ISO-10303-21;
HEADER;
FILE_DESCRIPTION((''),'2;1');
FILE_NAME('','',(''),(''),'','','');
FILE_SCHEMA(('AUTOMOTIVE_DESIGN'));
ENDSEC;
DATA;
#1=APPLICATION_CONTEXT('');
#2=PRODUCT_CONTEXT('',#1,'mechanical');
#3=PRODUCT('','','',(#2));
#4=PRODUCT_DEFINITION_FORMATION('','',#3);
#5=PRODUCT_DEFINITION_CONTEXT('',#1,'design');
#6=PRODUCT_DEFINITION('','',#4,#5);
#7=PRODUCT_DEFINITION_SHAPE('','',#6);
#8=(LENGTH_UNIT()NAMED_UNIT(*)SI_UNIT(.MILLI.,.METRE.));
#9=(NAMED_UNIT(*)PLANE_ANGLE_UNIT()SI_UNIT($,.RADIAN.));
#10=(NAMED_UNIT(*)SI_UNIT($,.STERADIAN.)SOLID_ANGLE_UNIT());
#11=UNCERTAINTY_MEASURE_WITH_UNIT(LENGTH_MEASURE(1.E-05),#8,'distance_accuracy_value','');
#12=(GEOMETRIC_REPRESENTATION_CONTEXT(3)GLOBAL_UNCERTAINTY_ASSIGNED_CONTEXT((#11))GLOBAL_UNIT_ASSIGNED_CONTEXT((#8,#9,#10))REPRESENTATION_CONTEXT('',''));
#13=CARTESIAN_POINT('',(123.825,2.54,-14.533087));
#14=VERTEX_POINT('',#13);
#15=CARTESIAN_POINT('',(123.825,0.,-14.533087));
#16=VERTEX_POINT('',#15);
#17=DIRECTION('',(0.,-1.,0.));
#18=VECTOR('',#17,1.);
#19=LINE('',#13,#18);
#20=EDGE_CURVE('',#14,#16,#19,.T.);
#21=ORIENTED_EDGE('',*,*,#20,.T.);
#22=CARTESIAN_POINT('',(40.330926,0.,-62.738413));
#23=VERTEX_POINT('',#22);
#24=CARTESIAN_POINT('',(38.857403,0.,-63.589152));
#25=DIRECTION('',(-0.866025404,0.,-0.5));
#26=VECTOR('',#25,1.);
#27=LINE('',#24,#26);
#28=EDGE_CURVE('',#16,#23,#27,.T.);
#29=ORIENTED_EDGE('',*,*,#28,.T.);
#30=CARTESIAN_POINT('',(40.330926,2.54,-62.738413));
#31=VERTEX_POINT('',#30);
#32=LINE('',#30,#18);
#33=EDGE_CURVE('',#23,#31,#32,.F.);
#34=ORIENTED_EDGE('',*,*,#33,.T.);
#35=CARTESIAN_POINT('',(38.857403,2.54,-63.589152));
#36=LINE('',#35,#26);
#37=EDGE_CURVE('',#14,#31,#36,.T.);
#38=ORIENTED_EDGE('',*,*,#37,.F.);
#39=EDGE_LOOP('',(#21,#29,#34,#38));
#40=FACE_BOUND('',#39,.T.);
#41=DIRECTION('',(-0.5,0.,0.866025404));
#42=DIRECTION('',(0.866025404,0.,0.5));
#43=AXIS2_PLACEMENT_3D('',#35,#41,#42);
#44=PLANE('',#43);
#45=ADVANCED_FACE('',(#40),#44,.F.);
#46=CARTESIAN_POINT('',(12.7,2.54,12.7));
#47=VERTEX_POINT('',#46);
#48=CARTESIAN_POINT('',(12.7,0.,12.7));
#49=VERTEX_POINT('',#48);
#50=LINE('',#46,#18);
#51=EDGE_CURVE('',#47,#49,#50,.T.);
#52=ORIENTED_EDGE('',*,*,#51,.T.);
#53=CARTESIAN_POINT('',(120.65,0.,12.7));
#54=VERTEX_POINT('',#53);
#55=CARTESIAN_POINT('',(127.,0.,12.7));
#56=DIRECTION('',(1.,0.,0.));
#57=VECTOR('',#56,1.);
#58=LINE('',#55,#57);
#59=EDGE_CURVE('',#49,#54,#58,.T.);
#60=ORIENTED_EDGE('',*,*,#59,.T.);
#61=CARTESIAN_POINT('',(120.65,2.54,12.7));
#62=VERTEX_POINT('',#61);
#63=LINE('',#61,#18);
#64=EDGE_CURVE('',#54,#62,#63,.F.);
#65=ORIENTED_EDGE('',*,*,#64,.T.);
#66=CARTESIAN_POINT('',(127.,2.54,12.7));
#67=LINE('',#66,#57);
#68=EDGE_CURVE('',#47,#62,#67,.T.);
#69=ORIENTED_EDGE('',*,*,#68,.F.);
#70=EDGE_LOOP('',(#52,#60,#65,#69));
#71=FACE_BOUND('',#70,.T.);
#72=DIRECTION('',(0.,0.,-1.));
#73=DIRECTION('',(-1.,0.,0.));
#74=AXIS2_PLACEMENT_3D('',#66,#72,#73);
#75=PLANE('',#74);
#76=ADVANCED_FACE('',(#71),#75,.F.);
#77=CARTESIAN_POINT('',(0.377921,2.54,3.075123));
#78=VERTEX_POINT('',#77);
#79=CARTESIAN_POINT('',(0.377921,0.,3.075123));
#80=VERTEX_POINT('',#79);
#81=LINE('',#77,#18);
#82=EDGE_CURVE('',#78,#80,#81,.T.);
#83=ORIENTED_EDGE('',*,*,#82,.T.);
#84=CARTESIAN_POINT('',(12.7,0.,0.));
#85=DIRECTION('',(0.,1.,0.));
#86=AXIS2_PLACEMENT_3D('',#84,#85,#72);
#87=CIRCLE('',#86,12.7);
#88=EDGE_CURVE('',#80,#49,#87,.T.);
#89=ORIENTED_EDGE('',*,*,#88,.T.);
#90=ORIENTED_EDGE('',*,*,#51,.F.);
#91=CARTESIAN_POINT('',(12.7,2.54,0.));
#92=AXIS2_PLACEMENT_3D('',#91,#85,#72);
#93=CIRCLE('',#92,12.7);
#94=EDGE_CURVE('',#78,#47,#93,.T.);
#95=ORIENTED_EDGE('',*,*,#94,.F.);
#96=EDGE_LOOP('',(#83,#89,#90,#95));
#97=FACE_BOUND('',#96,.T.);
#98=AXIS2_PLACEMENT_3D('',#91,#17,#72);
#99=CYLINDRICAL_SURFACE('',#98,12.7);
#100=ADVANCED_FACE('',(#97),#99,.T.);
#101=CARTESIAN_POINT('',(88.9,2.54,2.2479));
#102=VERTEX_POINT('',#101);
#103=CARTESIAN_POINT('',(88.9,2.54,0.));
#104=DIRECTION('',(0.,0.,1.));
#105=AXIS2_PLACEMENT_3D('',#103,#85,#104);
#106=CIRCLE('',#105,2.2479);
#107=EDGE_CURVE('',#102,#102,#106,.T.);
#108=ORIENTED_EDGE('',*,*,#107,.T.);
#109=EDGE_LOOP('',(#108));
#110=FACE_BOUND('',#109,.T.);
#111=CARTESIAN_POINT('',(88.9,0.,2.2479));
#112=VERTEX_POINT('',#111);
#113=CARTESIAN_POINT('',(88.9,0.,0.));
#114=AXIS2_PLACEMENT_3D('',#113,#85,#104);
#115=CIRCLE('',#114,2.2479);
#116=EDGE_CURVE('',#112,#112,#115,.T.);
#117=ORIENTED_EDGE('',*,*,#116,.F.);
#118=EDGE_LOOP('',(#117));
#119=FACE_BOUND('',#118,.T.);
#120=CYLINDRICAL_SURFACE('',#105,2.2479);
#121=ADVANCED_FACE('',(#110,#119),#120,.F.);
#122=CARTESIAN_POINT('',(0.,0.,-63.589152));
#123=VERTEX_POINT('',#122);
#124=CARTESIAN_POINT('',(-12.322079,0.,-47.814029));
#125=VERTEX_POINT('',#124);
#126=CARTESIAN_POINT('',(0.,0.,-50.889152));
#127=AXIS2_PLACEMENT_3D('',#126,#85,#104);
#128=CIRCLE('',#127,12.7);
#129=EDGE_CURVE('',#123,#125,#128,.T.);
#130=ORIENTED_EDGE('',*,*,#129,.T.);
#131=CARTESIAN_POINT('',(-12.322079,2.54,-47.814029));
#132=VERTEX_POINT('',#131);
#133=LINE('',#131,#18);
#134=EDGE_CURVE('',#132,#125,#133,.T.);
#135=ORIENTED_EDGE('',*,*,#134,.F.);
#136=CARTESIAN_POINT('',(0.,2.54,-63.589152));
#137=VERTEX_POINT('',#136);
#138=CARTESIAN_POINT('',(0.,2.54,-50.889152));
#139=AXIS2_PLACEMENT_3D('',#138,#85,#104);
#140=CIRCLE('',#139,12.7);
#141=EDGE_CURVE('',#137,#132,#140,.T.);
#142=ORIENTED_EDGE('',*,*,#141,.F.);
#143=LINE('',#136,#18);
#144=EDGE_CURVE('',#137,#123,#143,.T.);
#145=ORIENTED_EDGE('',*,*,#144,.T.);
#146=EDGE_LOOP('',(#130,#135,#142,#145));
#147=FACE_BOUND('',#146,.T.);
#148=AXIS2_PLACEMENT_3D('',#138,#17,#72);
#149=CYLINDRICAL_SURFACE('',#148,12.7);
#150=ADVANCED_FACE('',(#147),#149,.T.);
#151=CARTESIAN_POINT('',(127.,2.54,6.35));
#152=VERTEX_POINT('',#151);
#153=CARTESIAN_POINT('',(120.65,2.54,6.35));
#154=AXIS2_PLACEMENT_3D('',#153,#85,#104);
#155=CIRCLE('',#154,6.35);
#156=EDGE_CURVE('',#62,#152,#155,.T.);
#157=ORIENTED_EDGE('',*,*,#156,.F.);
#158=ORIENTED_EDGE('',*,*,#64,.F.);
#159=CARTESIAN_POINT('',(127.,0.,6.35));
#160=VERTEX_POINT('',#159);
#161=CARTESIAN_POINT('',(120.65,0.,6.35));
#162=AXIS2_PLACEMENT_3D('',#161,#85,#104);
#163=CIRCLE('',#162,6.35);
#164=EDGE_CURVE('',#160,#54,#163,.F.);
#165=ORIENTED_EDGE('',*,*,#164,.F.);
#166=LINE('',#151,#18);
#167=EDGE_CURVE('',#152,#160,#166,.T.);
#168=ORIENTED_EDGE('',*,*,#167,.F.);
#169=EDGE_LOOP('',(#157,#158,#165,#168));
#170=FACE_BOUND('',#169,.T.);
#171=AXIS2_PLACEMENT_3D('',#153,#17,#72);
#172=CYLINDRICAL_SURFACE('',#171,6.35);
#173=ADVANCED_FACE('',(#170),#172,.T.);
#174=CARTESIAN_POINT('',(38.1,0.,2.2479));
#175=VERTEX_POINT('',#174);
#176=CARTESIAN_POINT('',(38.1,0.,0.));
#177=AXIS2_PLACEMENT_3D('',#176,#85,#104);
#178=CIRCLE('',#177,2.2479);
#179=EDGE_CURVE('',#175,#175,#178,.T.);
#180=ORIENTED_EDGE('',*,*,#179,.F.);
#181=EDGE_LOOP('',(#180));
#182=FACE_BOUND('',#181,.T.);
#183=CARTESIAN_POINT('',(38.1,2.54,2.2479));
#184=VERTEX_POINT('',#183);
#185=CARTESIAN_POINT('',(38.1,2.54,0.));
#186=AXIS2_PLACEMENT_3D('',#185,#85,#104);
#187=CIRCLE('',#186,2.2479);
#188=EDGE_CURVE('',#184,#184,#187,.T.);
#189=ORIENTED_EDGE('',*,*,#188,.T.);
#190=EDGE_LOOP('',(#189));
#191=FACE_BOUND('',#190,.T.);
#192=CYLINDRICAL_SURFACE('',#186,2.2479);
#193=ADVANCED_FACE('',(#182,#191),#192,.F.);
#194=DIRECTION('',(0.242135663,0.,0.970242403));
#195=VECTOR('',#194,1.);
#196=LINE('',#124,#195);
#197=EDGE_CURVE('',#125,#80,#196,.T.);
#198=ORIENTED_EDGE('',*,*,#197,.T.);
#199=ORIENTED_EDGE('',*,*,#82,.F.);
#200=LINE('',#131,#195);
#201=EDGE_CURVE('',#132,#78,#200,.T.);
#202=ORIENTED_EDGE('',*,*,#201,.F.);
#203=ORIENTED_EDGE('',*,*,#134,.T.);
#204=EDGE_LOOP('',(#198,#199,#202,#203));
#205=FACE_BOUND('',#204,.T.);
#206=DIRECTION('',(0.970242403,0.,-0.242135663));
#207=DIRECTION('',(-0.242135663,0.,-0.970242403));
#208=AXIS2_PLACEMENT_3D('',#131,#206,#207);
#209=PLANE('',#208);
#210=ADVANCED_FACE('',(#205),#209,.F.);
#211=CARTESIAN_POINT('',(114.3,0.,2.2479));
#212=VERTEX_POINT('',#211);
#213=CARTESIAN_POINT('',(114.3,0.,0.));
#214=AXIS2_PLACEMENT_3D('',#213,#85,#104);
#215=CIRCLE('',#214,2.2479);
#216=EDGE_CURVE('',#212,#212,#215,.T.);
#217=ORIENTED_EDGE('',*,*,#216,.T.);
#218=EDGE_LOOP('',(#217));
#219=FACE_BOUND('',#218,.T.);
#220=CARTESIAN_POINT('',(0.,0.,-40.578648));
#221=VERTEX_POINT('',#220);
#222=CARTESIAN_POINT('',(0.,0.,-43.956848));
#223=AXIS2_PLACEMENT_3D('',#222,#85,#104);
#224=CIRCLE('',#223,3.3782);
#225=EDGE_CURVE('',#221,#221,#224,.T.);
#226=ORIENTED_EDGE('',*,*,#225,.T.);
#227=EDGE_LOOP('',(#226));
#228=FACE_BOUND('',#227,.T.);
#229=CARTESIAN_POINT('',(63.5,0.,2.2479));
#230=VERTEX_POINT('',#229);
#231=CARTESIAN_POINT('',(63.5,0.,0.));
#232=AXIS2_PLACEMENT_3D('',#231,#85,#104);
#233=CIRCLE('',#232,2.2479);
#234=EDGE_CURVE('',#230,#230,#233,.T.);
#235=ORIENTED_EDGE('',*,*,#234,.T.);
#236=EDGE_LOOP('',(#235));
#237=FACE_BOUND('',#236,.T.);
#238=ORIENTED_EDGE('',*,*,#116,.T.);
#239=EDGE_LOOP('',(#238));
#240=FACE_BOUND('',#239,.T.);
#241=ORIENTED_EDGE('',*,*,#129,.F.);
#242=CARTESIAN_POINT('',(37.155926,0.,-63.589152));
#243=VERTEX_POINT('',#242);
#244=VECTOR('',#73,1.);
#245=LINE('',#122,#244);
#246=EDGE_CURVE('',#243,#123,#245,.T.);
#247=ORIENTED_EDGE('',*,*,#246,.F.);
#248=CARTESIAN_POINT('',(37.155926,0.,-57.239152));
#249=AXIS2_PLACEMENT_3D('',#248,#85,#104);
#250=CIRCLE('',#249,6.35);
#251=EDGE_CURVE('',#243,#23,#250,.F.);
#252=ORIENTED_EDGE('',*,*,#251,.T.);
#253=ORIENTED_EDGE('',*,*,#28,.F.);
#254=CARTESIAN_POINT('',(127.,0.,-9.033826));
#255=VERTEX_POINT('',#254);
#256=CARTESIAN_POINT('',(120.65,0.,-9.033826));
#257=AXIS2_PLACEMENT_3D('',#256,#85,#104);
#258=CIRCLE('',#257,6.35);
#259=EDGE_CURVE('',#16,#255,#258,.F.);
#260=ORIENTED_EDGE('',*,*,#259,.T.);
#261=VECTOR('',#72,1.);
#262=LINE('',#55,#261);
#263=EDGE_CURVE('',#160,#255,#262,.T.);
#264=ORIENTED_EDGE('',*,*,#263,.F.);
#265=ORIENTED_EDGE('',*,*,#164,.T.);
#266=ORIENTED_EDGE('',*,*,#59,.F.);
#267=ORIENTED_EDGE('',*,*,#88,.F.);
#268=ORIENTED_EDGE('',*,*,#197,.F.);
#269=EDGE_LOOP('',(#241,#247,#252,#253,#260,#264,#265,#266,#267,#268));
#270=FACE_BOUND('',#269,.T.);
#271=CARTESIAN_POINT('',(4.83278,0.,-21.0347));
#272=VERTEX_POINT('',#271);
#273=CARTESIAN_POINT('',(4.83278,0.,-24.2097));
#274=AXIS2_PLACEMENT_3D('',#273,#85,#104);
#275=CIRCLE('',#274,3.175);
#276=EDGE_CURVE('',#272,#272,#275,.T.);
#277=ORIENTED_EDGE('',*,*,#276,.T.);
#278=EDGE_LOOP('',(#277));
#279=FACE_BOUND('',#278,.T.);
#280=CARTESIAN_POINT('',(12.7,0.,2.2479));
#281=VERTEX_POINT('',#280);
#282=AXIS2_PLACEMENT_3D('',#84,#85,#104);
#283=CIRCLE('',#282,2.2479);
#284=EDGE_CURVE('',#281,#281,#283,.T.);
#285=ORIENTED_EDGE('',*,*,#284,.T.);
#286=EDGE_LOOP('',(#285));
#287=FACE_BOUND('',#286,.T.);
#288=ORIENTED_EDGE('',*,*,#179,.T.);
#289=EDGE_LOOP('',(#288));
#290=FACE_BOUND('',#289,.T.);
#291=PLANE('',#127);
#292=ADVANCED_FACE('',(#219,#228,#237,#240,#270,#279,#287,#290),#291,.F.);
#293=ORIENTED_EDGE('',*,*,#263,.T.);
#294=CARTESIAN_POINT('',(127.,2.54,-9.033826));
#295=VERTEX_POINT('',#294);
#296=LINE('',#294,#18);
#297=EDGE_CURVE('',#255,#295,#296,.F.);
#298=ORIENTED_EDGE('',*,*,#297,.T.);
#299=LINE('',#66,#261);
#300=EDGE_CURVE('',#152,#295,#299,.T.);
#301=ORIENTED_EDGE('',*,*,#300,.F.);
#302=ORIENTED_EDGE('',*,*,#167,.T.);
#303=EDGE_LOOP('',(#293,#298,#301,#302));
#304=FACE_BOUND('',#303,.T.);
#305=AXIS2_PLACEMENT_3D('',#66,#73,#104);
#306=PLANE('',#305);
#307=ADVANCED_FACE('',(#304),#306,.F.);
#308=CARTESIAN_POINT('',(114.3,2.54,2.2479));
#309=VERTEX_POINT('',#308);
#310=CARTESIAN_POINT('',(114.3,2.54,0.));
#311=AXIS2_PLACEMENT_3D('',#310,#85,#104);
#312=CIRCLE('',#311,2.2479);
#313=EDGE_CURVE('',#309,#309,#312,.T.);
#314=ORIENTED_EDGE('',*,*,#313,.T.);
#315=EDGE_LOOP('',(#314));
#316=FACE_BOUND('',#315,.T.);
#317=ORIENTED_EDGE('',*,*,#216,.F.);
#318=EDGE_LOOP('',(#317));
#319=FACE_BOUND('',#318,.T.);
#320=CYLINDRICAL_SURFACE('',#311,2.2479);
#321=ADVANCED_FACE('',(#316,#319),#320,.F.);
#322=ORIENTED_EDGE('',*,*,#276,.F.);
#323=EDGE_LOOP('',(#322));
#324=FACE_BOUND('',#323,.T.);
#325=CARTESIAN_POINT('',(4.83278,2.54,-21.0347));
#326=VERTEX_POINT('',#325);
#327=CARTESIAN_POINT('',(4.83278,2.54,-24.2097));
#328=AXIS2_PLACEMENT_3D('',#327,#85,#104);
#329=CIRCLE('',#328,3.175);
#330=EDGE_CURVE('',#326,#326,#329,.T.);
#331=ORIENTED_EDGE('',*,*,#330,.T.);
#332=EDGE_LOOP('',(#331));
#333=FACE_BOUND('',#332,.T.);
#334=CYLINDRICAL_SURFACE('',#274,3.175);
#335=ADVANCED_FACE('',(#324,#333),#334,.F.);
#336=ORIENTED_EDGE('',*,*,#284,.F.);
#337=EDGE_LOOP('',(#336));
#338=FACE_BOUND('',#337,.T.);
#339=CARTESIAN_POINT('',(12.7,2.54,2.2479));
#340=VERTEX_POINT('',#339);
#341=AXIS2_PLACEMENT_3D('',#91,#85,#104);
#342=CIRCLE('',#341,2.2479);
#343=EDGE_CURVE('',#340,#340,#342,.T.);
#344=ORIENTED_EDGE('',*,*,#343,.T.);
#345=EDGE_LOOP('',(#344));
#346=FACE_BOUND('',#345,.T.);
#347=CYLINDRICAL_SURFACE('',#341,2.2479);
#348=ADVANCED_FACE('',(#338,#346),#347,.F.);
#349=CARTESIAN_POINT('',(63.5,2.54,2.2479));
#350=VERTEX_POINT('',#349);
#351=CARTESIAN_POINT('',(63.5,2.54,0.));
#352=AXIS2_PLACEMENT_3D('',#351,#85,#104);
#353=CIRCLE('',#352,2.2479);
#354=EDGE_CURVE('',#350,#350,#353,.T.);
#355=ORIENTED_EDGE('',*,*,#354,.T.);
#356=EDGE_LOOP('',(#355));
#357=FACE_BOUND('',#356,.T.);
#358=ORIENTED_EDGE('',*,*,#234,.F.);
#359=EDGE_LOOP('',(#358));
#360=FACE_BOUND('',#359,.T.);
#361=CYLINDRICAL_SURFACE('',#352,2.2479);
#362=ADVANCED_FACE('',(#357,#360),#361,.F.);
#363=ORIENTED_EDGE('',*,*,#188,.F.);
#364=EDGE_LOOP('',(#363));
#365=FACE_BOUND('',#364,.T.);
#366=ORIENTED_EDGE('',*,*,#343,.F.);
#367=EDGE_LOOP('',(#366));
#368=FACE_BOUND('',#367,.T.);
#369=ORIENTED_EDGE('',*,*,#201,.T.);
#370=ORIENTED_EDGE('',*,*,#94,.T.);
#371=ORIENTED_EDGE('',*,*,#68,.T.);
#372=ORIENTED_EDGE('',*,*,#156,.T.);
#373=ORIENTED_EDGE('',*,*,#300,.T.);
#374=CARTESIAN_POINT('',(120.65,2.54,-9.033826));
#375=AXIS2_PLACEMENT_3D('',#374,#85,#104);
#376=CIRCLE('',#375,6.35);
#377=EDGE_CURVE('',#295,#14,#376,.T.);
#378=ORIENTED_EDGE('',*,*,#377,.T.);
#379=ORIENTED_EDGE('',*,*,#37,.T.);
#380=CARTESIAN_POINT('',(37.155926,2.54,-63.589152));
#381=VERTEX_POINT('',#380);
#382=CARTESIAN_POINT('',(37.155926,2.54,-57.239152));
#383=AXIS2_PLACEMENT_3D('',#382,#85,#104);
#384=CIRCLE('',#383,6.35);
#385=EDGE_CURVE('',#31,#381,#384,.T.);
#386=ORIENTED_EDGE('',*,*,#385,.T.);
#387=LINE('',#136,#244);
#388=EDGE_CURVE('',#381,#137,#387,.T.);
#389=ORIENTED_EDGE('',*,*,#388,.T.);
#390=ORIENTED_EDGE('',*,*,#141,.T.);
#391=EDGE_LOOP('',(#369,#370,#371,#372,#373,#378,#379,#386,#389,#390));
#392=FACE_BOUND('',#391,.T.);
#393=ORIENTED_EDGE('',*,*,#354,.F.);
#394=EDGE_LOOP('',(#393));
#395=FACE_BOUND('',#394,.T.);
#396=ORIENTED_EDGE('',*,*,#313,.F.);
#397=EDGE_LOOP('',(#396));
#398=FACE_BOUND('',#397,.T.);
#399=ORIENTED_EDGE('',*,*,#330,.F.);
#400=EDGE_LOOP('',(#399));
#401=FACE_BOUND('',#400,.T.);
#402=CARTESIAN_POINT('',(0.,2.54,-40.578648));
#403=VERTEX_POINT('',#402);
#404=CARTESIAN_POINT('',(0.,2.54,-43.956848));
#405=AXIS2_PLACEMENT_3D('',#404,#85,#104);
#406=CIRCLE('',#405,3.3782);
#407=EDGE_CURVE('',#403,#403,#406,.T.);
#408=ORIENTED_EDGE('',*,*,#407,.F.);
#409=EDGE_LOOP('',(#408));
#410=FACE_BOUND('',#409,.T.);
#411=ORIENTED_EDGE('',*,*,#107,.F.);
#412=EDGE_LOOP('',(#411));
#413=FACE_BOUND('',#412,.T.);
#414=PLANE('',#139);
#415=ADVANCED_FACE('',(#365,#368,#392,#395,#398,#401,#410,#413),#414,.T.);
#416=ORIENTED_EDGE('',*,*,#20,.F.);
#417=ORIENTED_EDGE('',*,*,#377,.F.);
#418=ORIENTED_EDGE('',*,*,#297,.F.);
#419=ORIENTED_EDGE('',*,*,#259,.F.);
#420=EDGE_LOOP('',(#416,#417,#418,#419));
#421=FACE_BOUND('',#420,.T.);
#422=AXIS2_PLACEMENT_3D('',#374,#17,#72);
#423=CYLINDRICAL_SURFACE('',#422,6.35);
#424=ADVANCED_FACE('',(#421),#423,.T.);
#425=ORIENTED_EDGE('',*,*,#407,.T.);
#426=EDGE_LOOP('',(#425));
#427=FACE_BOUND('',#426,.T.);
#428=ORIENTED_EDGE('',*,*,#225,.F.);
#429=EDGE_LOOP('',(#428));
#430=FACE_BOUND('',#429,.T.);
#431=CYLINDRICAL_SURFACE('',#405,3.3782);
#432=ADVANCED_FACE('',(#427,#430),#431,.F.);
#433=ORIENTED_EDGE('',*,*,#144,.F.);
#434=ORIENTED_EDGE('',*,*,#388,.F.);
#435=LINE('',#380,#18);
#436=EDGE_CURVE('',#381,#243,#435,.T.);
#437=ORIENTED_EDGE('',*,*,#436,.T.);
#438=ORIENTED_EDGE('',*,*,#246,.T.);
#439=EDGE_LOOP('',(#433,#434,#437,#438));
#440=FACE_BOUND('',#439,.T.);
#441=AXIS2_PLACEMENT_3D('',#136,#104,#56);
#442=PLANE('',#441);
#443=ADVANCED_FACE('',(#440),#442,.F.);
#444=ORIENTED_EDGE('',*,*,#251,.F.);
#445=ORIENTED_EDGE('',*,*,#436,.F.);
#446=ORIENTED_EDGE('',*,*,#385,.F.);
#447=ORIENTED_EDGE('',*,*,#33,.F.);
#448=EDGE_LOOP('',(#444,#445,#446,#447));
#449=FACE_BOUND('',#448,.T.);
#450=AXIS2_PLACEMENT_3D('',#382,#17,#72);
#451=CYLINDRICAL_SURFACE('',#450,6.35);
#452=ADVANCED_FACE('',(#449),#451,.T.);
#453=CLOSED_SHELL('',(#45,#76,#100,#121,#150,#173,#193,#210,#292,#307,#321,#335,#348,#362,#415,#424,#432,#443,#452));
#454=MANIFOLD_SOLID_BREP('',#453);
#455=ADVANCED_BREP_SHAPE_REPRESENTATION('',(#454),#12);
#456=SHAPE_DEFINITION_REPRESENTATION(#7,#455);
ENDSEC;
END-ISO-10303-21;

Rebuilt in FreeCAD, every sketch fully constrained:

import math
import FreeCAD as App
import Part
import Sketcher

V = App.Vector
Q = App.Units.Quantity


def edges_at(feature, points):
    """Names of the edges that pass closest to the given points."""
    edges = feature.Shape.Edges
    near = lambda p: min(range(len(edges)), key=lambda i: edges[i].distToShape(Part.Vertex(*p))[0])
    return sorted({f"Edge{near(p) + 1}" for p in points})

doc = App.newDocument("Part")
body = doc.addObject("PartDesign::Body", "Body")

# Sketch on XZ plane
sketch1 = body.newObject("Sketcher::SketchObject", "Sketch")
sketch1.AttachmentSupport = (doc.getObject("XZ_Plane"), [""])
sketch1.MapMode = "FlatFace"
sketch1.addGeometry([
    Part.LineSegment(V(12.7, 12.7, 0), V(127, 12.7, 0)),  # 0
    Part.LineSegment(V(127, 12.7, 0), V(127, -12.7, 0)),  # 1
    Part.LineSegment(V(127, -12.7, 0), V(38.857403, -63.589152, 0)),  # 2
    Part.LineSegment(V(38.857403, -63.589152, 0), V(0, -63.589152, 0)),  # 3
    Part.ArcOfCircle(Part.Circle(V(0, -50.889152, 0), V(0, 0, 1), 12.7), math.radians(165.987377), math.radians(270)),  # 4
    Part.LineSegment(V(-12.322079, -47.814029, 0), V(0.377921, 3.075123, 0)),  # 5
    Part.ArcOfCircle(Part.Circle(V(12.7, 0, 0), V(0, 0, 1), 12.7), math.radians(90), math.radians(165.987377)),  # 6
], False)
sketch1.addConstraint([
    Sketcher.Constraint("Coincident", 0, 2, 1, 1),
    Sketcher.Constraint("Coincident", 1, 2, 2, 1),
    Sketcher.Constraint("Coincident", 2, 2, 3, 1),
    Sketcher.Constraint("Tangent", 3, 2, 4, 2),
    Sketcher.Constraint("Tangent", 4, 1, 5, 1),
    Sketcher.Constraint("Tangent", 5, 2, 6, 2),
    Sketcher.Constraint("Tangent", 6, 1, 0, 1),
    Sketcher.Constraint("Horizontal", 0),
    Sketcher.Constraint("Vertical", 1),
    Sketcher.Constraint("Horizontal", 3),
    Sketcher.Constraint("Equal", 4, 6),
    Sketcher.Constraint("PointOnObject", 4, 3, -2),
    Sketcher.Constraint("PointOnObject", 6, 3, -1),
    Sketcher.Constraint("Radius", 4, Q("0.5 in")),
    Sketcher.Constraint("DistanceY", 1, 2, 1, 1, Q("1 in")),
    Sketcher.Constraint("DistanceX", 0, 1, 0, 2, Q("4.5 in")),
    Sketcher.Constraint("DistanceX", -1, 1, 0, 2, Q("5 in")),
    Sketcher.Constraint("Angle", 2, Q("-150 deg")),
    Sketcher.Constraint("DistanceX", 3, 2, 3, 1, 38.857403),
])
pad1 = body.newObject("PartDesign::Pad", "Pad")
pad1.Profile = sketch1
pad1.Length = Q("0.1 in")
pad1.Reversed = True

# Sketch on XZ plane
sketch2 = body.newObject("Sketcher::SketchObject", "Sketch001")
sketch2.AttachmentSupport = (doc.getObject("XZ_Plane"), [""])
sketch2.MapMode = "FlatFace"
sketch2.AttachmentOffset = App.Placement(V(0, 0, -0.1 * 25.4), App.Rotation())
sketch2.addGeometry(Part.Circle(V(0, -43.956848, 0), V(0, 0, 1), 3.3782), False)
sketch2.addConstraint([
    Sketcher.Constraint("PointOnObject", 0, 3, -2),
    Sketcher.Constraint("Diameter", 0, Q("0.266 in")),
    Sketcher.Constraint("DistanceY", 0, 3, -1, 1, 43.956848),
])
doc.recompute()
hole = body.newObject("PartDesign::Hole", "Hole")
hole.Profile = sketch2
hole.ThreadType = "None"
hole.Diameter = Q("0.266 in")
hole.DepthType = "ThroughAll"
hole.Reversed = True

# Sketch on XZ plane
sketch3 = body.newObject("Sketcher::SketchObject", "Sketch002")
sketch3.AttachmentSupport = (doc.getObject("XZ_Plane"), [""])
sketch3.MapMode = "FlatFace"
sketch3.AttachmentOffset = App.Placement(V(0, 0, -0.1 * 25.4), App.Rotation())
sketch3.addGeometry([
    Part.Circle(V(12.7, 0, 0), V(0, 0, 1), 2.2479),  # 0
    Part.Circle(V(38.1, 0, 0), V(0, 0, 1), 2.2479),  # 1
    Part.Circle(V(63.5, 0, 0), V(0, 0, 1), 2.2479),  # 2
    Part.Circle(V(88.9, 0, 0), V(0, 0, 1), 2.2479),  # 3
    Part.Circle(V(114.3, 0, 0), V(0, 0, 1), 2.2479),  # 4
], False)
sketch3.addConstraint([
    Sketcher.Constraint("Equal", 0, 1),
    Sketcher.Constraint("Equal", 1, 2),
    Sketcher.Constraint("Equal", 2, 3),
    Sketcher.Constraint("Equal", 3, 4),
    Sketcher.Constraint("PointOnObject", 0, 3, -1),
    Sketcher.Constraint("PointOnObject", 1, 3, -1),
    Sketcher.Constraint("PointOnObject", 2, 3, -1),
    Sketcher.Constraint("PointOnObject", 3, 3, -1),
    Sketcher.Constraint("PointOnObject", 4, 3, -1),
    Sketcher.Constraint("Diameter", 0, Q("0.177 in")),
    Sketcher.Constraint("DistanceX", 0, 3, 1, 3, Q("1 in")),
    Sketcher.Constraint("DistanceX", 1, 3, 2, 3, Q("1 in")),
    Sketcher.Constraint("DistanceX", 2, 3, 3, 3, Q("1 in")),
    Sketcher.Constraint("DistanceX", 3, 3, 4, 3, Q("1 in")),
    Sketcher.Constraint("DistanceX", -1, 1, 0, 3, Q("0.5 in")),
])
doc.recompute()
hole2 = body.newObject("PartDesign::Hole", "Hole001")
hole2.Profile = sketch3
hole2.ThreadType = "None"
hole2.Diameter = Q("0.177 in")
hole2.DepthType = "ThroughAll"
hole2.Reversed = True
doc.recompute()

fillet = body.newObject("PartDesign::Fillet", "Fillet")
fillet.Base = (hole2, edges_at(hole2, [(127, 1.27, 12.7), (38.857, 1.27, -63.589), (127, 1.27, -12.7)]))
fillet.Radius = Q("0.25 in")

# Sketch on XZ plane
sketch4 = body.newObject("Sketcher::SketchObject", "Sketch003")
sketch4.AttachmentSupport = (doc.getObject("XZ_Plane"), [""])
sketch4.MapMode = "FlatFace"
sketch4.AttachmentOffset = App.Placement(V(0, 0, -0.1 * 25.4), App.Rotation())
sketch4.addGeometry(Part.Circle(V(4.83278, -24.2097, 0), V(0, 0, 1), 3.175), False)
sketch4.addConstraint([
    Sketcher.Constraint("Diameter", 0, Q("0.25 in")),
    Sketcher.Constraint("DistanceY", 0, 3, -1, 1, 24.2097),
    Sketcher.Constraint("DistanceX", -1, 1, 0, 3, 4.83278),
])
pocket1 = body.newObject("PartDesign::Pocket", "Pocket")
pocket1.Profile = sketch4
pocket1.Length = Q("0.1 in")
pocket1.Reversed = True

doc.recompute()
